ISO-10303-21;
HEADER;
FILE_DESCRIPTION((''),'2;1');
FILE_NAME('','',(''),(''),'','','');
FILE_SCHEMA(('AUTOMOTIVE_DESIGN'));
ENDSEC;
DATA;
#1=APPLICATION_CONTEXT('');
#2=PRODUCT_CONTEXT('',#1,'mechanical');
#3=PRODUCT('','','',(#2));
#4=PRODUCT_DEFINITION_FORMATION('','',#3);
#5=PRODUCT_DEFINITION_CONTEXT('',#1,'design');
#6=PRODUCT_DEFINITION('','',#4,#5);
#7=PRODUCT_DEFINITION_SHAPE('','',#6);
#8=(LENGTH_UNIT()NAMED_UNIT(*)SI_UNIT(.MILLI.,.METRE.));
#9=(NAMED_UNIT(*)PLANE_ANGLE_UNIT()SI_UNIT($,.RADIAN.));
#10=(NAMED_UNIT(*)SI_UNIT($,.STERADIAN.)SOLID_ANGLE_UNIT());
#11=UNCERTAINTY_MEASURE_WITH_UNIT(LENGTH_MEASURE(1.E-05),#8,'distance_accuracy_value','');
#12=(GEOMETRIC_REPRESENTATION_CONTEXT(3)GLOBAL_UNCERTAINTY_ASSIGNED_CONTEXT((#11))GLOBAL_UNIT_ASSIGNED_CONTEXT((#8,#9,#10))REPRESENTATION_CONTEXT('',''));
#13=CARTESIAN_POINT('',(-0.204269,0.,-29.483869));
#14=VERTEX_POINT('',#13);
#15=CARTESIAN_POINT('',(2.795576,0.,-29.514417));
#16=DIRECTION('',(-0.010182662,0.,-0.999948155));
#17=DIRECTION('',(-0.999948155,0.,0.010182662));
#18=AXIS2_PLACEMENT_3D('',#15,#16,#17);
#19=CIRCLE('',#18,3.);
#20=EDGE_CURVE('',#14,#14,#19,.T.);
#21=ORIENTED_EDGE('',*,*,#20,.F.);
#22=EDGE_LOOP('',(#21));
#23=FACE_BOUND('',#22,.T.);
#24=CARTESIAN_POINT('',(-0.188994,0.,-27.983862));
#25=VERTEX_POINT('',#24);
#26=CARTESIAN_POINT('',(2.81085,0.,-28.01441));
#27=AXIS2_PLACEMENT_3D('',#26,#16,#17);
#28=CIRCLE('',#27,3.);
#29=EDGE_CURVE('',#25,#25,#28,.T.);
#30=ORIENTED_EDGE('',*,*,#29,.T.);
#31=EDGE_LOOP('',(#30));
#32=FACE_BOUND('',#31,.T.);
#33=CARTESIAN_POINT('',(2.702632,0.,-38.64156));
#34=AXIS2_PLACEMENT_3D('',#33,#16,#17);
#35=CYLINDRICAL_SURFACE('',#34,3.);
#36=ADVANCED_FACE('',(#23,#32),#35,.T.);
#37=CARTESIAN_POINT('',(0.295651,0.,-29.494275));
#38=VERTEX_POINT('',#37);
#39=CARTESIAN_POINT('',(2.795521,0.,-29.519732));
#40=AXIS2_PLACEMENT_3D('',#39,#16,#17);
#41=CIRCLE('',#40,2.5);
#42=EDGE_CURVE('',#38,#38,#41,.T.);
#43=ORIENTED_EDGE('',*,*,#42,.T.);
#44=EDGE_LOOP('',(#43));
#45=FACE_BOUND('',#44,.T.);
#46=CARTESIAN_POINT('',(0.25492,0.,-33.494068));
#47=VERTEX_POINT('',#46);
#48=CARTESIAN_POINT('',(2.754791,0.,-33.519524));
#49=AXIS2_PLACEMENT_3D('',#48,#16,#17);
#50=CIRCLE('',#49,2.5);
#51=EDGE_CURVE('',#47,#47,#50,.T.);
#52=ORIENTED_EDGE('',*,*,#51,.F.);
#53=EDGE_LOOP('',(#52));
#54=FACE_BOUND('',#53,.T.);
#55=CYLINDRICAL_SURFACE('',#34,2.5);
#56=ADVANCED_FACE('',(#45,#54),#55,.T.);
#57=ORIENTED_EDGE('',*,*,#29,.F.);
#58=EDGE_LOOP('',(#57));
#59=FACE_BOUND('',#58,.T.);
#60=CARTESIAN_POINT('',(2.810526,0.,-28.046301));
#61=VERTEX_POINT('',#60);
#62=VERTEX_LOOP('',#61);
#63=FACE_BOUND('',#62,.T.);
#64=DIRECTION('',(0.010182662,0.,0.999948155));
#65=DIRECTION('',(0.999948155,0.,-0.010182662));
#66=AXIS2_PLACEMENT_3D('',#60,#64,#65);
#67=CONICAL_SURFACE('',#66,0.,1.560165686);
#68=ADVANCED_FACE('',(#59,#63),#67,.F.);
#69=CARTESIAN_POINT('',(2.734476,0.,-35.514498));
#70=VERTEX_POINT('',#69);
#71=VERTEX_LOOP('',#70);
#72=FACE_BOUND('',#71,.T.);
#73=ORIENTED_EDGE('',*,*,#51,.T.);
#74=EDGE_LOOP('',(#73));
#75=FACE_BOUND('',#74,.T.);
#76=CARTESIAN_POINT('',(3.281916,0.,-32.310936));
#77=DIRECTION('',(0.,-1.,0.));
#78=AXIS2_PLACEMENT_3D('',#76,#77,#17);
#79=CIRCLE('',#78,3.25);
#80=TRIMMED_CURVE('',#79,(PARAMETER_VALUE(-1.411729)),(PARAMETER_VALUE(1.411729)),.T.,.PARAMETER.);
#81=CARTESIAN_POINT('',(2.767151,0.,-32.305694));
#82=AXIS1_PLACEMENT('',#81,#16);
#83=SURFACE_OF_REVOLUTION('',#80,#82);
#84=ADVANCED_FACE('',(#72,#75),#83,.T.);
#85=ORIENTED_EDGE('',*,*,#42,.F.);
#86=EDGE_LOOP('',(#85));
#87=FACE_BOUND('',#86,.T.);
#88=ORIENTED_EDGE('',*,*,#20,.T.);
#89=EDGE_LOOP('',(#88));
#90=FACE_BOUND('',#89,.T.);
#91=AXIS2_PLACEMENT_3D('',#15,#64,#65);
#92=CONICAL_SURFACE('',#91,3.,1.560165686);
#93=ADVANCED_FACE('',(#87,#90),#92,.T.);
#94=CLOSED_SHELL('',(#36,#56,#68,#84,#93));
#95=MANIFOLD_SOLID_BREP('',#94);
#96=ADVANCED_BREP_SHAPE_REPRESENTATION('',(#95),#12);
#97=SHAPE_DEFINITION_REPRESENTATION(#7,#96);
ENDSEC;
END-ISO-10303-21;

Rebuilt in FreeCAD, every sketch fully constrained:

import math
import FreeCAD as App
import Part
import Sketcher
Q = App.Units.Quantity

doc = App.newDocument("Part")
body = doc.addObject("PartDesign::Body", "Body")

# Sketch on XZ plane
sketch1 = doc.addObject("Sketcher::SketchObject", "Sketch")
body.addObject(sketch1)
sketch1.AttachmentSupport = (doc.XZ_Plane, [""])
sketch1.MapMode = "FlatFace"
sketch1.addGeometry([
    Part.LineSegment(App.Vector(2.810526, -28.046301, 0), App.Vector(5.810695, -28.044958, 0)),  # 0
    Part.LineSegment(App.Vector(5.810695, -28.044958, 0), App.Vector(5.79542, -29.544965, 0)),  # 1
    Part.LineSegment(App.Vector(5.79542, -29.544965, 0), App.Vector(5.295392, -29.545188, 0)),  # 2
    Part.LineSegment(App.Vector(5.295392, -29.545188, 0), App.Vector(5.254661, -33.544981, 0)),  # 3
    Part.ArcOfCircle(Part.Circle(App.Vector(2.252387, -32.300452, 0), App.Vector(0, 0, 1), 3.25), math.radians(-81.46956), math.radians(-22.515413)),  # 4
    Part.LineSegment(App.Vector(2.734476, -35.514498, 0), App.Vector(2.810526, -28.046301, 0)),  # 5
], False)
sketch1.addGeometry(Part.LineSegment(App.Vector(2.734476, -35.514498, 0), App.Vector(2.81085, -28.01441, 0)), True)  # axis
sketch1.addConstraint([
    Sketcher.Constraint("Coincident", 0, 2, 1, 1),
    Sketcher.Constraint("Coincident", 1, 2, 2, 1),
    Sketcher.Constraint("Coincident", 2, 2, 3, 1),
    Sketcher.Constraint("Coincident", 3, 2, 4, 2),
    Sketcher.Constraint("Coincident", 4, 1, 5, 1),
    Sketcher.Constraint("Coincident", 5, 2, 0, 1),
    Sketcher.Constraint("Coincident", 6, 1, 4, 1),
    Sketcher.Constraint("Parallel", 0, 2),
    Sketcher.Constraint("Parallel", 1, 3),
    Sketcher.Constraint("Parallel", 3, 5),
    Sketcher.Constraint("Parallel", 5, 6),
    Sketcher.Constraint("Radius", 4, Q("3.25 mm")),
    Sketcher.Constraint("Distance", 3, Q("4 mm")),
    Sketcher.Constraint("DistanceY", 4, 1, -1, 1, Q("35.514498 mm")),
    Sketcher.Constraint("DistanceY", 5, 2, -1, 1, Q("28.046301 mm")),
    Sketcher.Constraint("Distance", 0, Q("3.00017 mm")),
    Sketcher.Constraint("Distance", 2, Q("0.500028 mm")),
    Sketcher.Constraint("DistanceX", -1, 1, 1, 2, Q("5.79542 mm")),
    Sketcher.Constraint("DistanceY", 2, 2, -1, 1, Q("29.545188 mm")),
    Sketcher.Constraint("DistanceX", -1, 1, 3, 2, Q("5.254661 mm")),
    Sketcher.Constraint("DistanceX", -1, 1, 6, 2, Q("2.81085 mm")),
    Sketcher.Constraint("DistanceY", 6, 2, -1, 1, Q("28.01441 mm")),
])
revolution = doc.addObject("PartDesign::Revolution", "Revolution")
body.addObject(revolution)
revolution.Profile = sketch1
revolution.ReferenceAxis = (sketch1, ["Axis0"])
revolution.Angle = 360

doc.recompute()
